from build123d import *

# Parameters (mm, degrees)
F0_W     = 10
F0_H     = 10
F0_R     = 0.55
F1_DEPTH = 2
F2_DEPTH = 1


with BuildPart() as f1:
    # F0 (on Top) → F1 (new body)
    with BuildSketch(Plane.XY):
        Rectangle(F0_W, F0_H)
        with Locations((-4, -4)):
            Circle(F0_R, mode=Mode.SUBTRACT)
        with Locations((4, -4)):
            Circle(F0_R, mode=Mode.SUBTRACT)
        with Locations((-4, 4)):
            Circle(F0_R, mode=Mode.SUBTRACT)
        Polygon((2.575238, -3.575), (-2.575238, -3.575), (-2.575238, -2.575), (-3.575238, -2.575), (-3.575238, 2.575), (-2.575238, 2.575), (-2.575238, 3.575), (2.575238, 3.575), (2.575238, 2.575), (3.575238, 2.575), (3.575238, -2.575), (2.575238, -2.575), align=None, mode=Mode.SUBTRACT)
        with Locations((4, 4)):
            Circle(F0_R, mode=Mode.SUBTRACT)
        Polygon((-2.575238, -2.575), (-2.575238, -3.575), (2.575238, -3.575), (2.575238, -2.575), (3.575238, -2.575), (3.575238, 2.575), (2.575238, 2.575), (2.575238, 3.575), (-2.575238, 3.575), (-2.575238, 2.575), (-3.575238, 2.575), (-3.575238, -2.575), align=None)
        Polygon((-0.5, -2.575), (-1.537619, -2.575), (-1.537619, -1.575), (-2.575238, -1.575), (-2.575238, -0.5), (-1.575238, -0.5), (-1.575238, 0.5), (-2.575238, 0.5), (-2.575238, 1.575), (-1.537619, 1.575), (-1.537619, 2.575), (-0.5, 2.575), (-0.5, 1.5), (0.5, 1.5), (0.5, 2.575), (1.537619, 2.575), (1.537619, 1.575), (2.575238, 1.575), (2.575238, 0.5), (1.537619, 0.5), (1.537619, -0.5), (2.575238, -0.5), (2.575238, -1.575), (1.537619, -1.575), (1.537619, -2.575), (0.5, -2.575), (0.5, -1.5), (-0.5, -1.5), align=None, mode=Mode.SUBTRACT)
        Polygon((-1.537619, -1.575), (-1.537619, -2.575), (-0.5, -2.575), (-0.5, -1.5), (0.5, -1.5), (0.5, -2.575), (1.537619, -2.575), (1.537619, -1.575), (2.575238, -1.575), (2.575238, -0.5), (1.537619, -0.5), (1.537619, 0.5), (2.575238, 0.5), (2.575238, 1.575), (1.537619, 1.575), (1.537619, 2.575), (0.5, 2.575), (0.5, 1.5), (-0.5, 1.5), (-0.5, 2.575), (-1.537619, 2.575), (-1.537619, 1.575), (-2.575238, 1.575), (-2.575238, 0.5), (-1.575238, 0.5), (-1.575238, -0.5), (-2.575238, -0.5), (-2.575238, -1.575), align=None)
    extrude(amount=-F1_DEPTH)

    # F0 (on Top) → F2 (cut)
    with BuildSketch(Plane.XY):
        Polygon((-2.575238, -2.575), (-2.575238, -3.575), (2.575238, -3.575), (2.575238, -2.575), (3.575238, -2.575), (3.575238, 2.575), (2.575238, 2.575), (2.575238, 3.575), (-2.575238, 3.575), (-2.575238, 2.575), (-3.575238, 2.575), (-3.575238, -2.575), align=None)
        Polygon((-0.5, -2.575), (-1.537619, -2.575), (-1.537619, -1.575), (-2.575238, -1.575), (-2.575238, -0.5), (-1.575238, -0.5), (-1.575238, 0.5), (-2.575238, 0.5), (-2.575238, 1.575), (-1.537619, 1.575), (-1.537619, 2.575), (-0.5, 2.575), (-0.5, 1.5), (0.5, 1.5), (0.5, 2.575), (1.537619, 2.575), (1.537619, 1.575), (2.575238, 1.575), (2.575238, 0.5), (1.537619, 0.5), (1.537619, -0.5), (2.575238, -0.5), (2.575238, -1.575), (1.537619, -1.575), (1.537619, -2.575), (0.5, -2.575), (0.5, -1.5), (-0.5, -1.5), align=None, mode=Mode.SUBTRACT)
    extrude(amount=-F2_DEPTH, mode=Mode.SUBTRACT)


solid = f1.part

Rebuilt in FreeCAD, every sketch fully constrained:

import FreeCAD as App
import Part
import Sketcher
from FreeCAD import Vector
Q = App.Units.Quantity

doc = App.newDocument("Part")
body = doc.addObject("PartDesign::Body", "Body")

# Sketch on XY plane
sketch1 = doc.addObject("Sketcher::SketchObject", "Sketch")
body.addObject(sketch1)
sketch1.AttachmentSupport = (doc.XY_Plane, [""])
sketch1.MapMode = "FlatFace"
sketch1.addGeometry([
    Part.LineSegment(Vector(-5, 5, 0), Vector(-5, -5, 0)),  # 0
    Part.LineSegment(Vector(-5, -5, 0), Vector(5, -5, 0)),  # 1
    Part.LineSegment(Vector(5, -5, 0), Vector(5, 5, 0)),  # 2
    Part.LineSegment(Vector(5, 5, 0), Vector(-5, 5, 0)),  # 3
    Part.Circle(Vector(-4, -4, 0), Vector(0, 0, 1), 0.6),  # 4
    Part.Circle(Vector(4, -4, 0), Vector(0, 0, 1), 0.6),  # 5
    Part.Circle(Vector(-4, 4, 0), Vector(0, 0, 1), 0.6),  # 6
    Part.Circle(Vector(4, 4, 0), Vector(0, 0, 1), 0.6),  # 7
], False)
sketch1.addConstraint([
    Sketcher.Constraint("Coincident", 0, 2, 1, 1),
    Sketcher.Constraint("Coincident", 1, 2, 2, 1),
    Sketcher.Constraint("Coincident", 2, 2, 3, 1),
    Sketcher.Constraint("Coincident", 3, 2, 0, 1),
    Sketcher.Constraint("Vertical", 0),
    Sketcher.Constraint("Horizontal", 1),
    Sketcher.Constraint("Vertical", 2),
    Sketcher.Constraint("Horizontal", 3),
    Sketcher.Constraint("Equal", 4, 5),
    Sketcher.Constraint("Equal", 5, 6),
    Sketcher.Constraint("Equal", 6, 7),
    Sketcher.Constraint("Symmetric", 5, 3, 6, 3, -1, 1),
    Sketcher.Constraint("Symmetric", 4, 3, 7, 3, -1, 1),
    Sketcher.Constraint("Symmetric", 0, 2, 2, 2, -1, 1),
    Sketcher.Constraint("Symmetric", 4, 3, 5, 3, -2),
    Sketcher.Constraint("Equal", 3, 0),
    Sketcher.Constraint("Diameter", 4, Q("1.1 mm")),
    Sketcher.Constraint("DistanceX", 1, 1, 1, 2, Q("10 mm")),
    Sketcher.Constraint("DistanceX", 4, 3, -1, 1, Q("4 mm")),
    Sketcher.Constraint("DistanceY", 4, 3, -1, 1, Q("4 mm")),
])
pad1 = doc.addObject("PartDesign::Pad", "Pad")
body.addObject(pad1)
pad1.Profile = sketch1
pad1.Length = 2
pad1.Reversed = True

# Sketch on XY plane
sketch2 = doc.addObject("Sketcher::SketchObject", "Sketch001")
body.addObject(sketch2)
sketch2.AttachmentSupport = (doc.XY_Plane, [""])
sketch2.MapMode = "FlatFace"
sketch2.addGeometry([
    Part.LineSegment(Vector(-2.6, -2.6, 0), Vector(-2.6, -3.6, 0)),  # 0
    Part.LineSegment(Vector(-2.6, -3.6, 0), Vector(2.6, -3.6, 0)),  # 1
    Part.LineSegment(Vector(2.6, -3.6, 0), Vector(2.6, -2.6, 0)),  # 2
    Part.LineSegment(Vector(2.6, -2.6, 0), Vector(3.6, -2.6, 0)),  # 3
    Part.LineSegment(Vector(3.6, -2.6, 0), Vector(3.6, 2.6, 0)),  # 4
    Part.LineSegment(Vector(3.6, 2.6, 0), Vector(2.6, 2.6, 0)),  # 5
    Part.LineSegment(Vector(2.6, 2.6, 0), Vector(2.6, 3.6, 0)),  # 6
    Part.LineSegment(Vector(2.6, 3.6, 0), Vector(-2.6, 3.6, 0)),  # 7
    Part.LineSegment(Vector(-2.6, 3.6, 0), Vector(-2.6, 2.6, 0)),  # 8
    Part.LineSegment(Vector(-2.6, 2.6, 0), Vector(-3.6, 2.6, 0)),  # 9
    Part.LineSegment(Vector(-3.6, 2.6, 0), Vector(-3.6, -2.6, 0)),  # 10
    Part.LineSegment(Vector(-3.6, -2.6, 0), Vector(-2.6, -2.6, 0)),  # 11
    Part.LineSegment(Vector(-0.5, -1.5, 0), Vector(-0.5, -2.6, 0)),  # 12
    Part.LineSegment(Vector(-0.5, -2.6, 0), Vector(-1.5, -2.6, 0)),  # 13
    Part.LineSegment(Vector(-1.5, -2.6, 0), Vector(-1.5, -1.6, 0)),  # 14
    Part.LineSegment(Vector(-1.5, -1.6, 0), Vector(-2.6, -1.6, 0)),  # 15
    Part.LineSegment(Vector(-2.6, -1.6, 0), Vector(-2.6, -0.5, 0)),  # 16
    Part.LineSegment(Vector(-2.6, -0.5, 0), Vector(-1.6, -0.5, 0)),  # 17
    Part.LineSegment(Vector(-1.6, -0.5, 0), Vector(-1.6, 0.5, 0)),  # 18
    Part.LineSegment(Vector(-1.6, 0.5, 0), Vector(-2.6, 0.5, 0)),  # 19
    Part.LineSegment(Vector(-2.6, 0.5, 0), Vector(-2.6, 1.6, 0)),  # 20
    Part.LineSegment(Vector(-2.6, 1.6, 0), Vector(-1.5, 1.6, 0)),  # 21
    Part.LineSegment(Vector(-1.5, 1.6, 0), Vector(-1.5, 2.6, 0)),  # 22
    Part.LineSegment(Vector(-1.5, 2.6, 0), Vector(-0.5, 2.6, 0)),  # 23
    Part.LineSegment(Vector(-0.5, 2.6, 0), Vector(-0.5, 1.5, 0)),  # 24
    Part.LineSegment(Vector(-0.5, 1.5, 0), Vector(0.5, 1.5, 0)),  # 25
    Part.LineSegment(Vector(0.5, 1.5, 0), Vector(0.5, 2.6, 0)),  # 26
    Part.LineSegment(Vector(0.5, 2.6, 0), Vector(1.5, 2.6, 0)),  # 27
    Part.LineSegment(Vector(1.5, 2.6, 0), Vector(1.5, 1.6, 0)),  # 28
    Part.LineSegment(Vector(1.5, 1.6, 0), Vector(2.6, 1.6, 0)),  # 29
    Part.LineSegment(Vector(2.6, 1.6, 0), Vector(2.6, 0.5, 0)),  # 30
    Part.LineSegment(Vector(2.6, 0.5, 0), Vector(1.5, 0.5, 0)),  # 31
    Part.LineSegment(Vector(1.5, 0.5, 0), Vector(1.5, -0.5, 0)),  # 32
    Part.LineSegment(Vector(1.5, -0.5, 0), Vector(2.6, -0.5, 0)),  # 33
    Part.LineSegment(Vector(2.6, -0.5, 0), Vector(2.6, -1.6, 0)),  # 34
    Part.LineSegment(Vector(2.6, -1.6, 0), Vector(1.5, -1.6, 0)),  # 35
    Part.LineSegment(Vector(1.5, -1.6, 0), Vector(1.5, -2.6, 0)),  # 36
    Part.LineSegment(Vector(1.5, -2.6, 0), Vector(0.5, -2.6, 0)),  # 37
    Part.LineSegment(Vector(0.5, -2.6, 0), Vector(0.5, -1.5, 0)),  # 38
    Part.LineSegment(Vector(0.5, -1.5, 0), Vector(-0.5, -1.5, 0)),  # 39
], False)
sketch2.addConstraint([
    Sketcher.Constraint("Coincident", 0, 2, 1, 1),
    Sketcher.Constraint("Coincident", 1, 2, 2, 1),
    Sketcher.Constraint("Coincident", 2, 2, 3, 1),
    Sketcher.Constraint("Coincident", 3, 2, 4, 1),
    Sketcher.Constraint("Coincident", 4, 2, 5, 1),
    Sketcher.Constraint("Coincident", 5, 2, 6, 1),
    Sketcher.Constraint("Coincident", 6, 2, 7, 1),
    Sketcher.Constraint("Coincident", 7, 2, 8, 1),
    Sketcher.Constraint("Coincident", 8, 2, 9, 1),
    Sketcher.Constraint("Coincident", 9, 2, 10, 1),
    Sketcher.Constraint("Coincident", 10, 2, 11, 1),
    Sketcher.Constraint("Coincident", 11, 2, 0, 1),
    Sketcher.Constraint("Coincident", 12, 2, 13, 1),
    Sketcher.Constraint("Coincident", 13, 2, 14, 1),
    Sketcher.Constraint("Coincident", 14, 2, 15, 1),
    Sketcher.Constraint("Coincident", 15, 2, 16, 1),
    Sketcher.Constraint("Coincident", 16, 2, 17, 1),
    Sketcher.Constraint("Coincident", 17, 2, 18, 1),
    Sketcher.Constraint("Coincident", 18, 2, 19, 1),
    Sketcher.Constraint("Coincident", 19, 2, 20, 1),
    Sketcher.Constraint("Coincident", 20, 2, 21, 1),
    Sketcher.Constraint("Coincident", 21, 2, 22, 1),
    Sketcher.Constraint("Coincident", 22, 2, 23, 1),
    Sketcher.Constraint("Coincident", 23, 2, 24, 1),
    Sketcher.Constraint("Coincident", 24, 2, 25, 1),
    Sketcher.Constraint("Coincident", 25, 2, 26, 1),
    Sketcher.Constraint("Coincident", 26, 2, 27, 1),
    Sketcher.Constraint("Coincident", 27, 2, 28, 1),
    Sketcher.Constraint("Coincident", 28, 2, 29, 1),
    Sketcher.Constraint("Coincident", 29, 2, 30, 1),
    Sketcher.Constraint("Coincident", 30, 2, 31, 1),
    Sketcher.Constraint("Coincident", 31, 2, 32, 1),
    Sketcher.Constraint("Coincident", 32, 2, 33, 1),
    Sketcher.Constraint("Coincident", 33, 2, 34, 1),
    Sketcher.Constraint("Coincident", 34, 2, 35, 1),
    Sketcher.Constraint("Coincident", 35, 2, 36, 1),
    Sketcher.Constraint("Coincident", 36, 2, 37, 1),
    Sketcher.Constraint("Coincident", 37, 2, 38, 1),
    Sketcher.Constraint("Coincident", 38, 2, 39, 1),
    Sketcher.Constraint("Coincident", 39, 2, 12, 1),
    Sketcher.Constraint("Vertical", 0),
    Sketcher.Constraint("Horizontal", 1),
    Sketcher.Constraint("Vertical", 2),
    Sketcher.Constraint("Horizontal", 3),
    Sketcher.Constraint("Vertical", 4),
    Sketcher.Constraint("Horizontal", 5),
    Sketcher.Constraint("Vertical", 6),
    Sketcher.Constraint("Horizontal", 7),
    Sketcher.Constraint("Vertical", 8),
    Sketcher.Constraint("Horizontal", 9),
    Sketcher.Constraint("Vertical", 10),
    Sketcher.Constraint("Horizontal", 11),
    Sketcher.Constraint("Vertical", 12),
    Sketcher.Constraint("Horizontal", 13),
    Sketcher.Constraint("Vertical", 14),
    Sketcher.Constraint("Horizontal", 15),
    Sketcher.Constraint("Vertical", 16),
    Sketcher.Constraint("Horizontal", 17),
    Sketcher.Constraint("Vertical", 18),
    Sketcher.Constraint("Horizontal", 19),
    Sketcher.Constraint("Vertical", 20),
    Sketcher.Constraint("Horizontal", 21),
    Sketcher.Constraint("Vertical", 22),
    Sketcher.Constraint("Horizontal", 23),
    Sketcher.Constraint("Vertical", 24),
    Sketcher.Constraint("Horizontal", 25),
    Sketcher.Constraint("Vertical", 26),
    Sketcher.Constraint("Horizontal", 27),
    Sketcher.Constraint("Vertical", 28),
    Sketcher.Constraint("Horizontal", 29),
    Sketcher.Constraint("Vertical", 30),
    Sketcher.Constraint("Horizontal", 31),
    Sketcher.Constraint("Vertical", 32),
    Sketcher.Constraint("Horizontal", 33),
    Sketcher.Constraint("Vertical", 34),
    Sketcher.Constraint("Horizontal", 35),
    Sketcher.Constraint("Vertical", 36),
    Sketcher.Constraint("Horizontal", 37),
    Sketcher.Constraint("Vertical", 38),
    Sketcher.Constraint("Horizontal", 39),
    Sketcher.Constraint("Symmetric", 0, 2, 6, 2, -1, 1),
    Sketcher.Constraint("Symmetric", 2, 2, 8, 2, -1, 1),
    Sketcher.Constraint("Symmetric", 4, 2, 10, 2, -1, 1),
    Sketcher.Constraint("Symmetric", 12, 2, 26, 2, -1, 1),
    Sketcher.Constraint("Symmetric", 14, 2, 28, 2, -1, 1),
    Sketcher.Constraint("Symmetric", 16, 2, 30, 2, -1, 1),
    Sketcher.Constraint("Symmetric", 19, 2, 33, 2, -1, 1),
    Sketcher.Constraint("Symmetric", 21, 2, 35, 2, -1, 1),
    Sketcher.Constraint("Symmetric", 23, 2, 37, 2, -1, 1),
    Sketcher.Constraint("Symmetric", 5, 2, 8, 2, -2),
    Sketcher.Constraint("Symmetric", 23, 2, 26, 2, -2),
    Sketcher.Constraint("Symmetric", 21, 2, 28, 2, -2),
    Sketcher.Constraint("Symmetric", 19, 2, 30, 2, -2),
    Sketcher.Constraint("Horizontal", 11, 2, 12, 2),
    Sketcher.Constraint("Vertical", 11, 2, 15, 2),
    Sketcher.Constraint("Vertical", 28, 2, 31, 2),
    Sketcher.Constraint("Equal", 13, 15),
    Sketcher.Constraint("Equal", 11, 17),
    Sketcher.Constraint("Equal", 19, 25),
    Sketcher.Constraint("Equal", 39, 0),
    Sketcher.Constraint("Equal", 8, 14),
    Sketcher.Constraint("Equal", 12, 16),
    Sketcher.Constraint("Equal", 14, 18),
    Sketcher.Constraint("Equal", 20, 24),
    Sketcher.Constraint("DistanceX", 3, 1, 3, 2, Q("1 mm")),
    Sketcher.Constraint("DistanceY", 4, 1, 4, 2, Q("5.15 mm")),
    Sketcher.Constraint("DistanceX", 13, 2, 13, 1, Q("1.037619 mm")),
])
pocket1 = doc.addObject("PartDesign::Pocket", "Pocket")
body.addObject(pocket1)
pocket1.Profile = sketch2
pocket1.Length = 1

doc.recompute()
